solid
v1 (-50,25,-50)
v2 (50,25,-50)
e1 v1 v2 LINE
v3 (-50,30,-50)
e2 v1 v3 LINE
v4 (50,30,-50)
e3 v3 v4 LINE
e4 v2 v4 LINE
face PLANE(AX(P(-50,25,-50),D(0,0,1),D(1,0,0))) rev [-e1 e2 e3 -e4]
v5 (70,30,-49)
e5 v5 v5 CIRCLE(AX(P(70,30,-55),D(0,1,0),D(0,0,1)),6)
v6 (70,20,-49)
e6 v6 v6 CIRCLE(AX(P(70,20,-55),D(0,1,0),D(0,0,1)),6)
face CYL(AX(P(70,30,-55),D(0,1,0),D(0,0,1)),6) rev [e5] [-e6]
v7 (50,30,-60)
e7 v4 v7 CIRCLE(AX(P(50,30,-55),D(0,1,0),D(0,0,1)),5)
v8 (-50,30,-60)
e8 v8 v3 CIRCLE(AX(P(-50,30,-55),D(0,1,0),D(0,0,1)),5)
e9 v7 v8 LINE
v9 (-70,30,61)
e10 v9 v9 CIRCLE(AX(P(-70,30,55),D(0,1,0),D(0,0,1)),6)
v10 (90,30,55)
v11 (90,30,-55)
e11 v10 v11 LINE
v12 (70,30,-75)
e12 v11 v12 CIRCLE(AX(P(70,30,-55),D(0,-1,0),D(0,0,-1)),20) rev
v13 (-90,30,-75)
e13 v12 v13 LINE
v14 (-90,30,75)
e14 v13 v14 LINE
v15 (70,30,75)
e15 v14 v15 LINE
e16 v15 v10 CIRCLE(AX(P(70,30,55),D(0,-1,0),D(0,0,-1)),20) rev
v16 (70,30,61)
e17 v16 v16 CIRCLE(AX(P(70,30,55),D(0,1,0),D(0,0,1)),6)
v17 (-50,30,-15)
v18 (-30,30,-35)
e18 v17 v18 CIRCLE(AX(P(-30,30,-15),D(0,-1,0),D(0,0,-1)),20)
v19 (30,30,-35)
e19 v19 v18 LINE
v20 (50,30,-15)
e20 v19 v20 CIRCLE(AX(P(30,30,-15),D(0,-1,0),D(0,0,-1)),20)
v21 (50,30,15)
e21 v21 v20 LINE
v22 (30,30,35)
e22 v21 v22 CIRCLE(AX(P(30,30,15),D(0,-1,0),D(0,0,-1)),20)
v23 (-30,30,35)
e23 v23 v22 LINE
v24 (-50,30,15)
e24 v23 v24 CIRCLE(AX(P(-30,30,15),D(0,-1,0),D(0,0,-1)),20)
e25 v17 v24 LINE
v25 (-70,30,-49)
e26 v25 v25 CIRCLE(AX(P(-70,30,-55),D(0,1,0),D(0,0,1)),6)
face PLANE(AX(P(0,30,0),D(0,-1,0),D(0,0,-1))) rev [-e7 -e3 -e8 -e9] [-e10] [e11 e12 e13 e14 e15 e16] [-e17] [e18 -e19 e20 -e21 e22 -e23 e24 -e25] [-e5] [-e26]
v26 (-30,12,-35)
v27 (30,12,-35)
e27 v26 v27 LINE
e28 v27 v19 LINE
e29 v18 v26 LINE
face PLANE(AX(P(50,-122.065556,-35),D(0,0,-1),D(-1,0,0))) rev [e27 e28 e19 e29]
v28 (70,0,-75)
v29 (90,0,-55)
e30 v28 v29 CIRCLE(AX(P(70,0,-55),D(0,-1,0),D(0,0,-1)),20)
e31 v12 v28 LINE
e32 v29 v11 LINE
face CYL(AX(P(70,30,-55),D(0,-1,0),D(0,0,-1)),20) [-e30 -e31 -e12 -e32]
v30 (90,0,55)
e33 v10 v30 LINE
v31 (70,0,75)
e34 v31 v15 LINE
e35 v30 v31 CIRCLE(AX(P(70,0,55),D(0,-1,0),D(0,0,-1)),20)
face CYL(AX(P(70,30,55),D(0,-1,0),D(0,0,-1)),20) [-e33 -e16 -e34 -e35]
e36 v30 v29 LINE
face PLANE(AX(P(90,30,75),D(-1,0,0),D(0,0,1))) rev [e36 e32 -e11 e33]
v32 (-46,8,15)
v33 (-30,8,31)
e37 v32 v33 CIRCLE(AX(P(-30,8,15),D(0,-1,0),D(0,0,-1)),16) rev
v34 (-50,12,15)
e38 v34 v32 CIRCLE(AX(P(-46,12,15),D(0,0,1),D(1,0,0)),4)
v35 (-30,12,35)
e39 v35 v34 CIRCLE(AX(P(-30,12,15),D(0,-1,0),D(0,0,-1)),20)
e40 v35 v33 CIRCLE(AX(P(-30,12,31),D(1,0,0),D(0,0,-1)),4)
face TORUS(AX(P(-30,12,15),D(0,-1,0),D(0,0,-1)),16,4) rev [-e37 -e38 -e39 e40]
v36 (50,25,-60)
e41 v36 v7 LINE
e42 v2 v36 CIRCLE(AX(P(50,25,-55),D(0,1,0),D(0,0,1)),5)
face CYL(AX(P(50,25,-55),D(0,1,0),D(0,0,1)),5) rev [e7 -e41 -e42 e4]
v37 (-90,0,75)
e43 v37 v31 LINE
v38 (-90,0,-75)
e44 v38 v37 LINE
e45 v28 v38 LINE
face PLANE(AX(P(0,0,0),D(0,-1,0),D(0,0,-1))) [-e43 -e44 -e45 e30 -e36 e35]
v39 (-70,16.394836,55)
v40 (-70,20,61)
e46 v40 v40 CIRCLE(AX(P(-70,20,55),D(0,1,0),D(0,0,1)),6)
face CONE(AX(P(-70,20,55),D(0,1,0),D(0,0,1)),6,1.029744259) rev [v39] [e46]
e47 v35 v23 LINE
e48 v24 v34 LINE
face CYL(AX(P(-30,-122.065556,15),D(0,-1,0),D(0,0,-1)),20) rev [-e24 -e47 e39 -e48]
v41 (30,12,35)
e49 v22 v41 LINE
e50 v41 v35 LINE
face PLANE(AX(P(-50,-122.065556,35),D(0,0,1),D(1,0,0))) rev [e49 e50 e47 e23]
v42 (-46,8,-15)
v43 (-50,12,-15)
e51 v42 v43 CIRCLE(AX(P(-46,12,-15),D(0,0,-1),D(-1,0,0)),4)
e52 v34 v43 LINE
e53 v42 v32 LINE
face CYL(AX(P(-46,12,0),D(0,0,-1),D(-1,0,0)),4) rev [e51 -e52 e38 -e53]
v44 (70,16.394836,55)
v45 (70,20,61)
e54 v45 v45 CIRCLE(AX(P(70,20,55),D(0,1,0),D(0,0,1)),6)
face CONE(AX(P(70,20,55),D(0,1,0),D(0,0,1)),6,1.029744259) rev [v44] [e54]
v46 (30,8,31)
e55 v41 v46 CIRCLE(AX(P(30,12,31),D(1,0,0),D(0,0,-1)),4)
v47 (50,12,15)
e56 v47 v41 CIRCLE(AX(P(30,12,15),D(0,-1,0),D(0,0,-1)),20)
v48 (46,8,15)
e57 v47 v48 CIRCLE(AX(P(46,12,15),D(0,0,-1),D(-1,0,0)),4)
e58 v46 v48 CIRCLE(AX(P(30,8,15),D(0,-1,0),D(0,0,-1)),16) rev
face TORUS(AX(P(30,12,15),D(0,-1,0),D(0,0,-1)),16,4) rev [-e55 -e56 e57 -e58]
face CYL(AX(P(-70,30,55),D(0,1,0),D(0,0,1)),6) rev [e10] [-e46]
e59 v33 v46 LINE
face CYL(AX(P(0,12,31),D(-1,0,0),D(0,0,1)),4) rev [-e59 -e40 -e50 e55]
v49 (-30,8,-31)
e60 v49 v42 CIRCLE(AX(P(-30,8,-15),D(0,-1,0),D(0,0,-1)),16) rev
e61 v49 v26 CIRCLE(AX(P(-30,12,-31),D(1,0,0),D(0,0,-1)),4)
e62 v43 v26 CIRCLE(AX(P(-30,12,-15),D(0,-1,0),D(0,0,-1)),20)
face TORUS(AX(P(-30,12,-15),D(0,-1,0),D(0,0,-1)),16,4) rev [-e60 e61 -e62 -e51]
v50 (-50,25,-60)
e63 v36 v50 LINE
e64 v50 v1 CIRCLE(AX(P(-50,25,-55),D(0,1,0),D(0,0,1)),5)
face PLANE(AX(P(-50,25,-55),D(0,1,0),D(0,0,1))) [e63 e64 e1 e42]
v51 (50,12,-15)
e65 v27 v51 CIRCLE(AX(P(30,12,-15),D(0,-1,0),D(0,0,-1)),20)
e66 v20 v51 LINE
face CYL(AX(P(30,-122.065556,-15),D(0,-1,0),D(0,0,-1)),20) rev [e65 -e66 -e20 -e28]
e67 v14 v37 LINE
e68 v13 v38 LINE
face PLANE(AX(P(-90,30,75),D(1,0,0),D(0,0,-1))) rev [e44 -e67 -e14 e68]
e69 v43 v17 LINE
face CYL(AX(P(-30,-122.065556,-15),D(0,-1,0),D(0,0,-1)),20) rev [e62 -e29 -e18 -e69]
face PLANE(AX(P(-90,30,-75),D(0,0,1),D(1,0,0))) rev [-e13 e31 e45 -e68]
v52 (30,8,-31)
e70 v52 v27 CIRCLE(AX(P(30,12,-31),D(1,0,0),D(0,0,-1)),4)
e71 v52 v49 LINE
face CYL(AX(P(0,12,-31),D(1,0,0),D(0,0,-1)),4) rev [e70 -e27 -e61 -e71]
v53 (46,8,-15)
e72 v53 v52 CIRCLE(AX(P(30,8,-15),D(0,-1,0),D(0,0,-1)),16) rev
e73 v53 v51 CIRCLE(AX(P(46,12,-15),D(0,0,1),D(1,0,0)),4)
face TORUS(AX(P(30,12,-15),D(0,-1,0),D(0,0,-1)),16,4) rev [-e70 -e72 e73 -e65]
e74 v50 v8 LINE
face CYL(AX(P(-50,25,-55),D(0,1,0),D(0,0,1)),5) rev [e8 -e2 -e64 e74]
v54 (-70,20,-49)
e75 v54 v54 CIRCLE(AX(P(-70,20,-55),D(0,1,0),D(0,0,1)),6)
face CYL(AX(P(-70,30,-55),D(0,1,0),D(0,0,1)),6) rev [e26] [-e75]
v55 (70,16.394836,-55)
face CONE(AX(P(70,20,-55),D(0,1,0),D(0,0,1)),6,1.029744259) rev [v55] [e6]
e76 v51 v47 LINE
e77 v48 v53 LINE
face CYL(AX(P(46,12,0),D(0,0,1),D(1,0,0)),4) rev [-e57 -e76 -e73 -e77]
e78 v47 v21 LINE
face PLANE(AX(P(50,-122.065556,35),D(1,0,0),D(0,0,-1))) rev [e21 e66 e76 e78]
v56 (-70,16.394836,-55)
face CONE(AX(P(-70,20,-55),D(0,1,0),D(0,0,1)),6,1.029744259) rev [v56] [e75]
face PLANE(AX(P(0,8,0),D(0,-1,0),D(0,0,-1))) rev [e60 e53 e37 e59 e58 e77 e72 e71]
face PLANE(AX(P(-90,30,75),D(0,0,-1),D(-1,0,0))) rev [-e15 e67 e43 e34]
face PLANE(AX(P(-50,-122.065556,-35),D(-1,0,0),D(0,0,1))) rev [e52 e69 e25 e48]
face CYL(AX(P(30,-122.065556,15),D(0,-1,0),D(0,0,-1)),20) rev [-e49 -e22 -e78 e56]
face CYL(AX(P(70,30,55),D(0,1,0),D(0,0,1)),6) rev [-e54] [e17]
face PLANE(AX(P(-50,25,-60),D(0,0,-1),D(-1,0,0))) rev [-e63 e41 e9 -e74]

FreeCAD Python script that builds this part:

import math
import FreeCAD as App
import Part
import Sketcher
Q = App.Units.Quantity


def edges_at(feature, points):
    """Names of the edges that pass closest to the given points."""
    edges = feature.Shape.Edges
    near = lambda p: min(range(len(edges)), key=lambda i: edges[i].distToShape(Part.Vertex(*p))[0])
    return sorted({f"Edge{near(p) + 1}" for p in points})

doc = App.newDocument("Part")
params = doc.addObject("Spreadsheet::Sheet", "Params")
for row, (alias, value) in enumerate([
    ("sketch1_width", "180 mm"),
    ("sketch1_height", "150 mm"),
    ("pad1_length", "30 mm"),
    ("sketch2_diameter", "12 mm"),
    ("hole_diameter", "12 mm"),
    ("hole_depth", "10 mm"),
    ("sketch3_width", "100 mm"),
    ("sketch3_height", "70 mm"),
    ("pocket1_length", "22 mm"),
    ("fillet_radius", "20 mm"),
    ("fillet2_radius", "20 mm"),
    ("sketch4_radius", "5 mm"),
    ("sketch4_width", "100 mm"),
    ("pocket2_length", "5 mm"),
    ("fillet3_radius", "4 mm"),
], start=1):
    params.set(f"A{row}", alias)
    params.set(f"B{row}", "=" + value)
    params.setAlias(f"B{row}", alias)

body = doc.addObject("PartDesign::Body", "Body")

sketch1 = doc.addObject("Sketcher::SketchObject", "Sketch")
body.addObject(sketch1)
sketch1.AttachmentSupport = (doc.XZ_Plane, [""])
sketch1.MapMode = "FlatFace"
sketch1.addGeometry([
    Part.LineSegment(App.Vector(-90, -75, 0), App.Vector(-90, 75, 0)),
    Part.LineSegment(App.Vector(-90, 75, 0), App.Vector(90, 75, 0)),
    Part.LineSegment(App.Vector(90, 75, 0), App.Vector(90, -75, 0)),
    Part.LineSegment(App.Vector(90, -75, 0), App.Vector(-90, -75, 0)),
], False)
sketch1.addConstraint([
    Sketcher.Constraint("Coincident", 0, 2, 1, 1),
    Sketcher.Constraint("Coincident", 1, 2, 2, 1),
    Sketcher.Constraint("Coincident", 2, 2, 3, 1),
    Sketcher.Constraint("Coincident", 3, 2, 0, 1),
    Sketcher.Constraint("Vertical", 0),
    Sketcher.Constraint("Horizontal", 1),
    Sketcher.Constraint("Vertical", 2),
    Sketcher.Constraint("Horizontal", 3),
    Sketcher.Constraint("Symmetric", 0, 2, 2, 2, -1, 1),
    Sketcher.Constraint("DistanceX", 1, 1, 1, 2, Q("180 mm")),
    Sketcher.Constraint("DistanceY", 0, 1, 0, 2, Q("150 mm")),
])
sketch1.setExpression("Constraints[9]", "Params.sketch1_width")
sketch1.setExpression("Constraints[10]", "Params.sketch1_height")
pad1 = doc.addObject("PartDesign::Pad", "Pad")
body.addObject(pad1)
pad1.Profile = sketch1
pad1.setExpression("Length", "Params.pad1_length")
pad1.Reversed = True

sketch2 = doc.addObject("Sketcher::SketchObject", "Sketch001")
body.addObject(sketch2)
sketch2.AttachmentSupport = (doc.XZ_Plane, [""])
sketch2.MapMode = "FlatFace"
sketch2.AttachmentOffset = App.Placement(App.Vector(0, 0, -30), App.Rotation())
sketch2.addGeometry([
    Part.Circle(App.Vector(-70, 55, 0), App.Vector(0, 0, 1), 6),
    Part.Circle(App.Vector(-70, -55, 0), App.Vector(0, 0, 1), 6),
    Part.Circle(App.Vector(70, -55, 0), App.Vector(0, 0, 1), 6),
    Part.Circle(App.Vector(70, 55, 0), App.Vector(0, 0, 1), 6),
], False)
sketch2.addConstraint([
    Sketcher.Constraint("Equal", 0, 1),
    Sketcher.Constraint("Equal", 1, 2),
    Sketcher.Constraint("Equal", 2, 3),
    Sketcher.Constraint("Symmetric", 0, 3, 2, 3, -1, 1),
    Sketcher.Constraint("Symmetric", 1, 3, 3, 3, -1, 1),
    Sketcher.Constraint("Symmetric", 1, 3, 2, 3, -2),
    Sketcher.Constraint("Diameter", 0, Q("12 mm")),
    Sketcher.Constraint("DistanceX", 0, 3, -1, 1, Q("70 mm")),
    Sketcher.Constraint("DistanceY", -1, 1, 0, 3, Q("55 mm")),
])
sketch2.setExpression("Constraints[6]", "Params.sketch2_diameter")
doc.recompute()
hole = doc.addObject("PartDesign::Hole", "Hole")
body.addObject(hole)
hole.Profile = sketch2
hole.ThreadType = "None"
hole.setExpression("Diameter", "Params.hole_diameter")
hole.DepthType = "Dimension"
hole.setExpression("Depth", "Params.hole_depth")
hole.DrillPoint = "Angled"
hole.DrillPointAngle = 118
hole.Reversed = True

sketch3 = doc.addObject("Sketcher::SketchObject", "Sketch002")
body.addObject(sketch3)
sketch3.AttachmentSupport = (doc.XZ_Plane, [""])
sketch3.MapMode = "FlatFace"
sketch3.AttachmentOffset = App.Placement(App.Vector(0, 0, -30), App.Rotation())
sketch3.addGeometry([
    Part.LineSegment(App.Vector(-50, -35, 0), App.Vector(-50, 35, 0)),
    Part.LineSegment(App.Vector(-50, 35, 0), App.Vector(50, 35, 0)),
    Part.LineSegment(App.Vector(50, 35, 0), App.Vector(50, -35, 0)),
    Part.LineSegment(App.Vector(50, -35, 0), App.Vector(-50, -35, 0)),
], False)
sketch3.addConstraint([
    Sketcher.Constraint("Coincident", 0, 2, 1, 1),
    Sketcher.Constraint("Coincident", 1, 2, 2, 1),
    Sketcher.Constraint("Coincident", 2, 2, 3, 1),
    Sketcher.Constraint("Coincident", 3, 2, 0, 1),
    Sketcher.Constraint("Vertical", 0),
    Sketcher.Constraint("Horizontal", 1),
    Sketcher.Constraint("Vertical", 2),
    Sketcher.Constraint("Horizontal", 3),
    Sketcher.Constraint("Symmetric", 0, 2, 2, 2, -1, 1),
    Sketcher.Constraint("DistanceX", 1, 1, 1, 2, Q("100 mm")),
    Sketcher.Constraint("DistanceY", 0, 1, 0, 2, Q("70 mm")),
])
sketch3.setExpression("Constraints[9]", "Params.sketch3_width")
sketch3.setExpression("Constraints[10]", "Params.sketch3_height")
pocket1 = doc.addObject("PartDesign::Pocket", "Pocket")
body.addObject(pocket1)
pocket1.Profile = sketch3
pocket1.setExpression("Length", "Params.pocket1_length")
pocket1.Reversed = True
doc.recompute()

fillet = doc.addObject("PartDesign::Fillet", "Fillet")
body.addObject(fillet)
fillet.Base = (pocket1, edges_at(pocket1, [
    (50, 19, -35),
    (-50, 19, -35),
    (-50, 19, 35),
    (50, 19, 35),
]))
fillet.setExpression("Radius", "Params.fillet_radius")
doc.recompute()

fillet2 = doc.addObject("PartDesign::Fillet", "Fillet001")
body.addObject(fillet2)
fillet2.Base = (fillet, edges_at(fillet, [(90, 15, 75), (90, 15, -75)]))
fillet2.setExpression("Radius", "Params.fillet2_radius")

sketch4 = doc.addObject("Sketcher::SketchObject", "Sketch003")
body.addObject(sketch4)
sketch4.AttachmentSupport = (doc.XZ_Plane, [""])
sketch4.MapMode = "FlatFace"
sketch4.AttachmentOffset = App.Placement(App.Vector(0, 0, -30), App.Rotation())
sketch4.addGeometry([
    Part.LineSegment(App.Vector(50, -60, 0), App.Vector(-50, -60, 0)),
    Part.ArcOfCircle(Part.Circle(App.Vector(-50, -55, 0), App.Vector(0, 0, 1), 5), math.radians(90), math.radians(270)),
    Part.LineSegment(App.Vector(-50, -50, 0), App.Vector(50, -50, 0)),
    Part.ArcOfCircle(Part.Circle(App.Vector(50, -55, 0), App.Vector(0, 0, 1), 5), math.radians(-90), math.radians(90)),
], False)
sketch4.addConstraint([
    Sketcher.Constraint("Tangent", 0, 2, 1, 2),
    Sketcher.Constraint("Tangent", 1, 1, 2, 1),
    Sketcher.Constraint("Tangent", 2, 2, 3, 2),
    Sketcher.Constraint("Tangent", 3, 1, 0, 1),
    Sketcher.Constraint("Horizontal", 0),
    Sketcher.Constraint("Horizontal", 2),
    Sketcher.Constraint("Radius", 1, Q("5 mm")),
    Sketcher.Constraint("DistanceX", 0, 2, 0, 1, Q("100 mm")),
    Sketcher.Constraint("DistanceX", 1, 3, -1, 1, Q("50 mm")),
    Sketcher.Constraint("DistanceY", 1, 3, -1, 1, Q("55 mm")),
])
sketch4.setExpression("Constraints[6]", "Params.sketch4_radius")
sketch4.setExpression("Constraints[7]", "Params.sketch4_width")
pocket2 = doc.addObject("PartDesign::Pocket", "Pocket001")
body.addObject(pocket2)
pocket2.Profile = sketch4
pocket2.setExpression("Length", "Params.pocket2_length")
pocket2.Reversed = True
doc.recompute()

fillet3 = doc.addObject("PartDesign::Fillet", "Fillet002")
body.addObject(fillet3)
fillet3.Base = (pocket2, edges_at(pocket2, [
    (50, 8, 0),
    (0, 8, 35),
    (0, 8, -35),
    (-50, 8, 0),
    (-44.142, 8, -29.142),
    (44.142, 8, -29.142),
    (-44.142, 8, 29.142),
    (44.142, 8, 29.142),
]))
fillet3.setExpression("Radius", "Params.fillet3_radius")

doc.recompute()
